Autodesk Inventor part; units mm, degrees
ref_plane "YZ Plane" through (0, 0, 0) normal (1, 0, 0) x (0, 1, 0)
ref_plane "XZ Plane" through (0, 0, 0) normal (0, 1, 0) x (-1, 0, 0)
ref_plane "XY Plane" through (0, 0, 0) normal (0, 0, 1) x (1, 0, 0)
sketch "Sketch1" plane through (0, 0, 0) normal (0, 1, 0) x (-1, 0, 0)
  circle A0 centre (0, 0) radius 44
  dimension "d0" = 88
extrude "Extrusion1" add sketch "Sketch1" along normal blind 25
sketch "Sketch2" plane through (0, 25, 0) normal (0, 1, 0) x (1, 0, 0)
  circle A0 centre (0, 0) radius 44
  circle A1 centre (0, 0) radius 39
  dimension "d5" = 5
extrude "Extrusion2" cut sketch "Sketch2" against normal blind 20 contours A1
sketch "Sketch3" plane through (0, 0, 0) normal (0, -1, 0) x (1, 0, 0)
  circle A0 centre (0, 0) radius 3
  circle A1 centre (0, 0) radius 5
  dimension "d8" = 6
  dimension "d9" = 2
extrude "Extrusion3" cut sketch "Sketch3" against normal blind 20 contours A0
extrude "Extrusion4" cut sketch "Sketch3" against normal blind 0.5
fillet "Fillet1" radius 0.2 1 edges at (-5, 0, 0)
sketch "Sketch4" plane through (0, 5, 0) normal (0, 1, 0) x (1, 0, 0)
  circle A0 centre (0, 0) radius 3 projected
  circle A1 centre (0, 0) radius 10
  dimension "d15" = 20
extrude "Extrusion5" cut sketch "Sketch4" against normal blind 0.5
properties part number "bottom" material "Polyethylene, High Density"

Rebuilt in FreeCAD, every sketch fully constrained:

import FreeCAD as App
import Part
import Sketcher

V = App.Vector
Q = App.Units.Quantity


def edges_at(feature, points):
    """Names of the edges that pass closest to the given points."""
    edges = feature.Shape.Edges
    near = lambda p: min(range(len(edges)), key=lambda i: edges[i].distToShape(Part.Vertex(*p))[0])
    return sorted({f"Edge{near(p) + 1}" for p in points})

doc = App.newDocument("Part")
body = doc.addObject("PartDesign::Body", "Body")

# Sketch on XZ plane
sketch1 = body.newObject("Sketcher::SketchObject", "Sketch")
sketch1.AttachmentSupport = (doc.getObject("XZ_Plane"), [""])
sketch1.MapMode = "FlatFace"
sketch1.addGeometry(Part.Circle(V(0, 0, 0), V(0, 0, 1), 44), False)
sketch1.addConstraint(Sketcher.Constraint("Coincident", 0, 3, -1, 1))
sketch1.addConstraint(Sketcher.Constraint("Diameter", 0, Q("88 mm")))
pad1 = body.newObject("PartDesign::Pad", "Pad")
pad1.Profile = sketch1
pad1.Length = 25
pad1.Reversed = True

# Sketch on XZ plane
sketch2 = body.newObject("Sketcher::SketchObject", "Sketch001")
sketch2.AttachmentSupport = (doc.getObject("XZ_Plane"), [""])
sketch2.MapMode = "FlatFace"
sketch2.AttachmentOffset = App.Placement(V(0, 0, -25), App.Rotation())
sketch2.addGeometry(Part.Circle(V(0, 0, 0), V(0, 0, 1), 39), False)
sketch2.addConstraint(Sketcher.Constraint("Coincident", 0, 3, -1, 1))
sketch2.addConstraint(Sketcher.Constraint("Diameter", 0, Q("78 mm")))
pocket1 = body.newObject("PartDesign::Pocket", "Pocket")
pocket1.Profile = sketch2
pocket1.Length = 20
pocket1.Reversed = True

# Sketch on XZ plane
sketch3 = body.newObject("Sketcher::SketchObject", "Sketch002")
sketch3.AttachmentSupport = (doc.getObject("XZ_Plane"), [""])
sketch3.MapMode = "FlatFace"
sketch3.addGeometry(Part.Circle(V(0, 0, 0), V(0, 0, 1), 3), False)
sketch3.addConstraint(Sketcher.Constraint("Coincident", 0, 3, -1, 1))
sketch3.addConstraint(Sketcher.Constraint("Diameter", 0, Q("6 mm")))
pocket2 = body.newObject("PartDesign::Pocket", "Pocket001")
pocket2.Profile = sketch3
pocket2.Length = 20

# Sketch on XZ plane
sketch4 = body.newObject("Sketcher::SketchObject", "Sketch003")
sketch4.AttachmentSupport = (doc.getObject("XZ_Plane"), [""])
sketch4.MapMode = "FlatFace"
sketch4.addGeometry(Part.Circle(V(0, 0, 0), V(0, 0, 1), 5), False)
sketch4.addGeometry(Part.Circle(V(0, 0, 0), V(0, 0, 1), 3), False)
sketch4.addConstraint(Sketcher.Constraint("Coincident", 0, 3, -1, 1))
sketch4.addConstraint(Sketcher.Constraint("Coincident", 1, 3, -1, 1))
sketch4.addConstraint(Sketcher.Constraint("Diameter", 1, Q("6 mm")))
sketch4.addConstraint(Sketcher.Constraint("Diameter", 0, Q("10 mm")))
pocket3 = body.newObject("PartDesign::Pocket", "Pocket002")
pocket3.Profile = sketch4
pocket3.Length = 0.5
doc.recompute()

fillet = body.newObject("PartDesign::Fillet", "Fillet")
fillet.Base = (pocket3, edges_at(pocket3, [(-5, 0, 0)]))
fillet.Radius = 0.2

# Sketch on XZ plane
sketch5 = body.newObject("Sketcher::SketchObject", "Sketch004")
sketch5.AttachmentSupport = (doc.getObject("XZ_Plane"), [""])
sketch5.MapMode = "FlatFace"
sketch5.AttachmentOffset = App.Placement(V(0, 0, -5), App.Rotation())
sketch5.addGeometry(Part.Circle(V(0, 0, 0), V(0, 0, 1), 10), False)
sketch5.addGeometry(Part.Circle(V(0, 0, 0), V(0, 0, 1), 3), False)
sketch5.addConstraint(Sketcher.Constraint("Coincident", 0, 3, -1, 1))
sketch5.addConstraint(Sketcher.Constraint("Coincident", 1, 3, -1, 1))
sketch5.addConstraint(Sketcher.Constraint("Diameter", 0, Q("20 mm")))
sketch5.addConstraint(Sketcher.Constraint("Diameter", 1, Q("6 mm")))
pocket4 = body.newObject("PartDesign::Pocket", "Pocket003")
pocket4.Profile = sketch5
pocket4.Length = 0.5
pocket4.Reversed = True

doc.recompute()
